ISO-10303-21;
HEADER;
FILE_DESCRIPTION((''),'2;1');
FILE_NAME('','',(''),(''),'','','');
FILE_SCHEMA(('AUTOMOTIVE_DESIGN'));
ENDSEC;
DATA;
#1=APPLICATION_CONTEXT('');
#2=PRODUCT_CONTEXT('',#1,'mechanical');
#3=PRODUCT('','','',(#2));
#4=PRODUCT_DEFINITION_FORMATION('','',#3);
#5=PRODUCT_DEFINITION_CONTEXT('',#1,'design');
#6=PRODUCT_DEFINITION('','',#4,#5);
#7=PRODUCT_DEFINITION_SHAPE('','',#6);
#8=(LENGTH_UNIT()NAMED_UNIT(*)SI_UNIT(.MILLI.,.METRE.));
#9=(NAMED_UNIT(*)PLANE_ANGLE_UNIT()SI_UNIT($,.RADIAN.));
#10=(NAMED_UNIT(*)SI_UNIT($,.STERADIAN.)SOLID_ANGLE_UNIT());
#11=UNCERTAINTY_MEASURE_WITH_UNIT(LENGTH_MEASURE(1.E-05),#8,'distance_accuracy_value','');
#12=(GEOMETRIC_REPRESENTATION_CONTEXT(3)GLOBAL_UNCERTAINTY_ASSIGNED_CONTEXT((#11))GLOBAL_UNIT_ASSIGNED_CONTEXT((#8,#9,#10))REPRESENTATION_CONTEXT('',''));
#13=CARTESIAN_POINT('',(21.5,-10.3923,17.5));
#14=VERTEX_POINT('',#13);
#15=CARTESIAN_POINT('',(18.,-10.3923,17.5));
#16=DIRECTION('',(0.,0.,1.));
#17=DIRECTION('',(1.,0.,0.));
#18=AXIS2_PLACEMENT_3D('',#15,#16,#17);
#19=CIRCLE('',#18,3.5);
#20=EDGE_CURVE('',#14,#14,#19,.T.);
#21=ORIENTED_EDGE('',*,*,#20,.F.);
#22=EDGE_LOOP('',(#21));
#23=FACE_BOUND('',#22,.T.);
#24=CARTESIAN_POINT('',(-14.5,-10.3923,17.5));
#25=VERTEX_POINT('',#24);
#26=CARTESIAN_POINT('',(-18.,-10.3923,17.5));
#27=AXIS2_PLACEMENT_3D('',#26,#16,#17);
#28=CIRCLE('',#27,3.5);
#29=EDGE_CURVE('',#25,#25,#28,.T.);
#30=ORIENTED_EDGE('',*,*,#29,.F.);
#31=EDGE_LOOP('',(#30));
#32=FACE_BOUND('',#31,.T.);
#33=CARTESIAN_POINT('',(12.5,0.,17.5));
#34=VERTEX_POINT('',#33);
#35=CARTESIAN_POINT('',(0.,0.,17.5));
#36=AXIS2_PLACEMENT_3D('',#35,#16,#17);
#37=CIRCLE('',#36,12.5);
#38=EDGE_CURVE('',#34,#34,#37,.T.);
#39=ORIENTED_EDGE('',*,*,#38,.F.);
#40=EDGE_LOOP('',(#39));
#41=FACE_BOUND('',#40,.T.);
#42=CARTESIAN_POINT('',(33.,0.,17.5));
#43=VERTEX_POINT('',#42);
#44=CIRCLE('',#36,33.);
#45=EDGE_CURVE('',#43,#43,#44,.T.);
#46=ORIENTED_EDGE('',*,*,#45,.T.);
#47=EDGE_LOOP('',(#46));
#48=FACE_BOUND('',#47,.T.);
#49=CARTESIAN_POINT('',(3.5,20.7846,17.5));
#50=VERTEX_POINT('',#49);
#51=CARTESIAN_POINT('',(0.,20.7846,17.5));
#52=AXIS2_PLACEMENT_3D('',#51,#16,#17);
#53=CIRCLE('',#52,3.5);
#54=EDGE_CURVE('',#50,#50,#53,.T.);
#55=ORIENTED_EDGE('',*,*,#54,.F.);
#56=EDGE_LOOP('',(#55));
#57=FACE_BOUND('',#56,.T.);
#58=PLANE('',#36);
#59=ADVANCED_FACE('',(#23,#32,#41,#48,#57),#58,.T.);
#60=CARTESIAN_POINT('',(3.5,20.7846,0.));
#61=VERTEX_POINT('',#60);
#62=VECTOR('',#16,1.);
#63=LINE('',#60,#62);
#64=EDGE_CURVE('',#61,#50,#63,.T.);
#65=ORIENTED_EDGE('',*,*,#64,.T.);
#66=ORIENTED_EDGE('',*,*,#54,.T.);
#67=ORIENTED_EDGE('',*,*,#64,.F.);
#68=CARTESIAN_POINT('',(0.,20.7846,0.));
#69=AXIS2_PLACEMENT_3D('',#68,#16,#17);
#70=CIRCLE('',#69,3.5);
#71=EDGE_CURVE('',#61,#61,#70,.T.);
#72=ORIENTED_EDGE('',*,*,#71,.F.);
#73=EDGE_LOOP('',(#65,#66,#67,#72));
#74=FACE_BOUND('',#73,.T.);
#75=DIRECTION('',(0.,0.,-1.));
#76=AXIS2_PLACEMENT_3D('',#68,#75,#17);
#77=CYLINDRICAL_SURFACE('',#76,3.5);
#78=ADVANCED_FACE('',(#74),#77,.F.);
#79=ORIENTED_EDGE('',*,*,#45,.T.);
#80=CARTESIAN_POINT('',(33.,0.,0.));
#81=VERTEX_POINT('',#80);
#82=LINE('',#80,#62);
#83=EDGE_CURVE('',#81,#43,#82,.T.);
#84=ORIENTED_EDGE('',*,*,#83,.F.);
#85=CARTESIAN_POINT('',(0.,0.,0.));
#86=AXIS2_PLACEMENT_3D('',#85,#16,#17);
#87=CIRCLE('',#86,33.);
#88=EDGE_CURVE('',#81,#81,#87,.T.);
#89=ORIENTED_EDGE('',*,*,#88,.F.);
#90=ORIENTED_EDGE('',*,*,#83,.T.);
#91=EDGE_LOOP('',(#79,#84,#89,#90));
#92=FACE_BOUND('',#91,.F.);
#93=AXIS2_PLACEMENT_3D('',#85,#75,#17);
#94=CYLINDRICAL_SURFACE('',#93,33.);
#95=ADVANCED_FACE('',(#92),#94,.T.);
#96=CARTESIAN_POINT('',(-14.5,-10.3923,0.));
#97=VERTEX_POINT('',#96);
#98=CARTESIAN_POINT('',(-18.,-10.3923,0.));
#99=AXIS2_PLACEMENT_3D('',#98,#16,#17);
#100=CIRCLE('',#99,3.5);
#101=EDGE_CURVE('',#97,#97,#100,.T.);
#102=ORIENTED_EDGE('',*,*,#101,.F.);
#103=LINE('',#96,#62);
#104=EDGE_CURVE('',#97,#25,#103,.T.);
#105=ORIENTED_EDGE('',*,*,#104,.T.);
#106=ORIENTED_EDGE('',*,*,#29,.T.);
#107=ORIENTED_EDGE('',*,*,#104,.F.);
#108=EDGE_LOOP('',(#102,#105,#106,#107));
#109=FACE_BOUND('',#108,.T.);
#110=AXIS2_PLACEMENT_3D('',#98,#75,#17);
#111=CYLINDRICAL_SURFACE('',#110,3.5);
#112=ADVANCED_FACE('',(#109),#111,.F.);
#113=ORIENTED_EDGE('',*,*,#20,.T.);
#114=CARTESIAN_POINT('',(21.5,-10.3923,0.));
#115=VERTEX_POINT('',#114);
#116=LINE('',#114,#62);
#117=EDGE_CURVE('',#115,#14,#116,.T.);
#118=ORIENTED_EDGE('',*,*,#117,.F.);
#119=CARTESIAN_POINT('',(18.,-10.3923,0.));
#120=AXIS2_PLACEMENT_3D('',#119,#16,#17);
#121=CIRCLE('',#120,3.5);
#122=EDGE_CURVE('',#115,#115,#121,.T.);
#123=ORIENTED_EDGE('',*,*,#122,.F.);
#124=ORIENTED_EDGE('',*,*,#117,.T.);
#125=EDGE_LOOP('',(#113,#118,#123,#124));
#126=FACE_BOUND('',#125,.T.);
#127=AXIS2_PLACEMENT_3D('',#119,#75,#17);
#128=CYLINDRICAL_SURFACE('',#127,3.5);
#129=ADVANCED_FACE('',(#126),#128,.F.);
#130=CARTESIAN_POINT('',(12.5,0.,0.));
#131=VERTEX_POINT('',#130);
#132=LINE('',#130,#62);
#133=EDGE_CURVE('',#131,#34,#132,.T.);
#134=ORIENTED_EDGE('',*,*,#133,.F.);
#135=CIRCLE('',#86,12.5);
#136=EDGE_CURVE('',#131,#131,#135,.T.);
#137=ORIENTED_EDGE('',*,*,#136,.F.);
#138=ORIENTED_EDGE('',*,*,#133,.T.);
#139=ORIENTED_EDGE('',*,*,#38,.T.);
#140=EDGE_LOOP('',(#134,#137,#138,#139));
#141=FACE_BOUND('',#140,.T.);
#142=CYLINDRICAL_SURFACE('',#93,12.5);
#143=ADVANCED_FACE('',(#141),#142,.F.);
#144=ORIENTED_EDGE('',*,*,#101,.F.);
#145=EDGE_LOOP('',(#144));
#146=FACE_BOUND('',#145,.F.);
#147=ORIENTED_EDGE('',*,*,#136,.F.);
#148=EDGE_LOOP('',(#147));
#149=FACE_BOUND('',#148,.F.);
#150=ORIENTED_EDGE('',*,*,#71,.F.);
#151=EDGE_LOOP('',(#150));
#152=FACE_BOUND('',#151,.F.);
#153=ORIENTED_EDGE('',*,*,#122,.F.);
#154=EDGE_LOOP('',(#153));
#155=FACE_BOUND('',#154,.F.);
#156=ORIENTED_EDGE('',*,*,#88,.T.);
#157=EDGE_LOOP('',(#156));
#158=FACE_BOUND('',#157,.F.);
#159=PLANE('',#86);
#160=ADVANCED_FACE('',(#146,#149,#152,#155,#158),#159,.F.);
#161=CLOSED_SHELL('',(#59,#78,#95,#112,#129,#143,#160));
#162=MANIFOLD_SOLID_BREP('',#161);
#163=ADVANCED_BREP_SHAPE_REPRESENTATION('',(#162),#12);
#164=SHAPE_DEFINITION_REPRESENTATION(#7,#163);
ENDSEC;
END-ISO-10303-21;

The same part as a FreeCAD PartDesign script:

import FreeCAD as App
import Part
import Sketcher
Q = App.Units.Quantity

doc = App.newDocument("Part")
body = doc.addObject("PartDesign::Body", "Body")

# Sketch on XY plane
sketch1 = body.newObject("Sketcher::SketchObject", "Sketch")
sketch1.AttachmentSupport = (doc.getObject("XY_Plane"), [""])
sketch1.MapMode = "FlatFace"
sketch1.addGeometry([
    Part.Circle(App.Vector(0, 0, 0), App.Vector(0, 0, 1), 33),  # 0
    Part.Circle(App.Vector(-18, -10.3923, 0), App.Vector(0, 0, 1), 3.5),  # 1
    Part.Circle(App.Vector(18, -10.3923, 0), App.Vector(0, 0, 1), 3.5),  # 2
    Part.Circle(App.Vector(0, 0, 0), App.Vector(0, 0, 1), 12.5),  # 3
    Part.Circle(App.Vector(0, 20.7846, 0), App.Vector(0, 0, 1), 3.5),  # 4
], False)
sketch1.addConstraint([
    Sketcher.Constraint("Coincident", 0, 3, -1, 1),
    Sketcher.Constraint("Coincident", 3, 3, -1, 1),
    Sketcher.Constraint("Equal", 1, 2),
    Sketcher.Constraint("Equal", 2, 4),
    Sketcher.Constraint("Symmetric", 1, 3, 2, 3, -2),
    Sketcher.Constraint("PointOnObject", 4, 3, -2),
    Sketcher.Constraint("Diameter", 3, Q("25 mm")),
    Sketcher.Constraint("Diameter", 0, Q("66 mm")),
    Sketcher.Constraint("Diameter", 1, Q("7 mm")),
    Sketcher.Constraint("DistanceX", 1, 3, -1, 1, Q("18 mm")),
    Sketcher.Constraint("DistanceY", 1, 3, 4, 3, Q("31.177 mm")),
    Sketcher.Constraint("DistanceY", 1, 3, -1, 1, Q("10.3923 mm")),
])
pad1 = body.newObject("PartDesign::Pad", "Pad")
pad1.Profile = sketch1
pad1.Length = 17.5

doc.recompute()
